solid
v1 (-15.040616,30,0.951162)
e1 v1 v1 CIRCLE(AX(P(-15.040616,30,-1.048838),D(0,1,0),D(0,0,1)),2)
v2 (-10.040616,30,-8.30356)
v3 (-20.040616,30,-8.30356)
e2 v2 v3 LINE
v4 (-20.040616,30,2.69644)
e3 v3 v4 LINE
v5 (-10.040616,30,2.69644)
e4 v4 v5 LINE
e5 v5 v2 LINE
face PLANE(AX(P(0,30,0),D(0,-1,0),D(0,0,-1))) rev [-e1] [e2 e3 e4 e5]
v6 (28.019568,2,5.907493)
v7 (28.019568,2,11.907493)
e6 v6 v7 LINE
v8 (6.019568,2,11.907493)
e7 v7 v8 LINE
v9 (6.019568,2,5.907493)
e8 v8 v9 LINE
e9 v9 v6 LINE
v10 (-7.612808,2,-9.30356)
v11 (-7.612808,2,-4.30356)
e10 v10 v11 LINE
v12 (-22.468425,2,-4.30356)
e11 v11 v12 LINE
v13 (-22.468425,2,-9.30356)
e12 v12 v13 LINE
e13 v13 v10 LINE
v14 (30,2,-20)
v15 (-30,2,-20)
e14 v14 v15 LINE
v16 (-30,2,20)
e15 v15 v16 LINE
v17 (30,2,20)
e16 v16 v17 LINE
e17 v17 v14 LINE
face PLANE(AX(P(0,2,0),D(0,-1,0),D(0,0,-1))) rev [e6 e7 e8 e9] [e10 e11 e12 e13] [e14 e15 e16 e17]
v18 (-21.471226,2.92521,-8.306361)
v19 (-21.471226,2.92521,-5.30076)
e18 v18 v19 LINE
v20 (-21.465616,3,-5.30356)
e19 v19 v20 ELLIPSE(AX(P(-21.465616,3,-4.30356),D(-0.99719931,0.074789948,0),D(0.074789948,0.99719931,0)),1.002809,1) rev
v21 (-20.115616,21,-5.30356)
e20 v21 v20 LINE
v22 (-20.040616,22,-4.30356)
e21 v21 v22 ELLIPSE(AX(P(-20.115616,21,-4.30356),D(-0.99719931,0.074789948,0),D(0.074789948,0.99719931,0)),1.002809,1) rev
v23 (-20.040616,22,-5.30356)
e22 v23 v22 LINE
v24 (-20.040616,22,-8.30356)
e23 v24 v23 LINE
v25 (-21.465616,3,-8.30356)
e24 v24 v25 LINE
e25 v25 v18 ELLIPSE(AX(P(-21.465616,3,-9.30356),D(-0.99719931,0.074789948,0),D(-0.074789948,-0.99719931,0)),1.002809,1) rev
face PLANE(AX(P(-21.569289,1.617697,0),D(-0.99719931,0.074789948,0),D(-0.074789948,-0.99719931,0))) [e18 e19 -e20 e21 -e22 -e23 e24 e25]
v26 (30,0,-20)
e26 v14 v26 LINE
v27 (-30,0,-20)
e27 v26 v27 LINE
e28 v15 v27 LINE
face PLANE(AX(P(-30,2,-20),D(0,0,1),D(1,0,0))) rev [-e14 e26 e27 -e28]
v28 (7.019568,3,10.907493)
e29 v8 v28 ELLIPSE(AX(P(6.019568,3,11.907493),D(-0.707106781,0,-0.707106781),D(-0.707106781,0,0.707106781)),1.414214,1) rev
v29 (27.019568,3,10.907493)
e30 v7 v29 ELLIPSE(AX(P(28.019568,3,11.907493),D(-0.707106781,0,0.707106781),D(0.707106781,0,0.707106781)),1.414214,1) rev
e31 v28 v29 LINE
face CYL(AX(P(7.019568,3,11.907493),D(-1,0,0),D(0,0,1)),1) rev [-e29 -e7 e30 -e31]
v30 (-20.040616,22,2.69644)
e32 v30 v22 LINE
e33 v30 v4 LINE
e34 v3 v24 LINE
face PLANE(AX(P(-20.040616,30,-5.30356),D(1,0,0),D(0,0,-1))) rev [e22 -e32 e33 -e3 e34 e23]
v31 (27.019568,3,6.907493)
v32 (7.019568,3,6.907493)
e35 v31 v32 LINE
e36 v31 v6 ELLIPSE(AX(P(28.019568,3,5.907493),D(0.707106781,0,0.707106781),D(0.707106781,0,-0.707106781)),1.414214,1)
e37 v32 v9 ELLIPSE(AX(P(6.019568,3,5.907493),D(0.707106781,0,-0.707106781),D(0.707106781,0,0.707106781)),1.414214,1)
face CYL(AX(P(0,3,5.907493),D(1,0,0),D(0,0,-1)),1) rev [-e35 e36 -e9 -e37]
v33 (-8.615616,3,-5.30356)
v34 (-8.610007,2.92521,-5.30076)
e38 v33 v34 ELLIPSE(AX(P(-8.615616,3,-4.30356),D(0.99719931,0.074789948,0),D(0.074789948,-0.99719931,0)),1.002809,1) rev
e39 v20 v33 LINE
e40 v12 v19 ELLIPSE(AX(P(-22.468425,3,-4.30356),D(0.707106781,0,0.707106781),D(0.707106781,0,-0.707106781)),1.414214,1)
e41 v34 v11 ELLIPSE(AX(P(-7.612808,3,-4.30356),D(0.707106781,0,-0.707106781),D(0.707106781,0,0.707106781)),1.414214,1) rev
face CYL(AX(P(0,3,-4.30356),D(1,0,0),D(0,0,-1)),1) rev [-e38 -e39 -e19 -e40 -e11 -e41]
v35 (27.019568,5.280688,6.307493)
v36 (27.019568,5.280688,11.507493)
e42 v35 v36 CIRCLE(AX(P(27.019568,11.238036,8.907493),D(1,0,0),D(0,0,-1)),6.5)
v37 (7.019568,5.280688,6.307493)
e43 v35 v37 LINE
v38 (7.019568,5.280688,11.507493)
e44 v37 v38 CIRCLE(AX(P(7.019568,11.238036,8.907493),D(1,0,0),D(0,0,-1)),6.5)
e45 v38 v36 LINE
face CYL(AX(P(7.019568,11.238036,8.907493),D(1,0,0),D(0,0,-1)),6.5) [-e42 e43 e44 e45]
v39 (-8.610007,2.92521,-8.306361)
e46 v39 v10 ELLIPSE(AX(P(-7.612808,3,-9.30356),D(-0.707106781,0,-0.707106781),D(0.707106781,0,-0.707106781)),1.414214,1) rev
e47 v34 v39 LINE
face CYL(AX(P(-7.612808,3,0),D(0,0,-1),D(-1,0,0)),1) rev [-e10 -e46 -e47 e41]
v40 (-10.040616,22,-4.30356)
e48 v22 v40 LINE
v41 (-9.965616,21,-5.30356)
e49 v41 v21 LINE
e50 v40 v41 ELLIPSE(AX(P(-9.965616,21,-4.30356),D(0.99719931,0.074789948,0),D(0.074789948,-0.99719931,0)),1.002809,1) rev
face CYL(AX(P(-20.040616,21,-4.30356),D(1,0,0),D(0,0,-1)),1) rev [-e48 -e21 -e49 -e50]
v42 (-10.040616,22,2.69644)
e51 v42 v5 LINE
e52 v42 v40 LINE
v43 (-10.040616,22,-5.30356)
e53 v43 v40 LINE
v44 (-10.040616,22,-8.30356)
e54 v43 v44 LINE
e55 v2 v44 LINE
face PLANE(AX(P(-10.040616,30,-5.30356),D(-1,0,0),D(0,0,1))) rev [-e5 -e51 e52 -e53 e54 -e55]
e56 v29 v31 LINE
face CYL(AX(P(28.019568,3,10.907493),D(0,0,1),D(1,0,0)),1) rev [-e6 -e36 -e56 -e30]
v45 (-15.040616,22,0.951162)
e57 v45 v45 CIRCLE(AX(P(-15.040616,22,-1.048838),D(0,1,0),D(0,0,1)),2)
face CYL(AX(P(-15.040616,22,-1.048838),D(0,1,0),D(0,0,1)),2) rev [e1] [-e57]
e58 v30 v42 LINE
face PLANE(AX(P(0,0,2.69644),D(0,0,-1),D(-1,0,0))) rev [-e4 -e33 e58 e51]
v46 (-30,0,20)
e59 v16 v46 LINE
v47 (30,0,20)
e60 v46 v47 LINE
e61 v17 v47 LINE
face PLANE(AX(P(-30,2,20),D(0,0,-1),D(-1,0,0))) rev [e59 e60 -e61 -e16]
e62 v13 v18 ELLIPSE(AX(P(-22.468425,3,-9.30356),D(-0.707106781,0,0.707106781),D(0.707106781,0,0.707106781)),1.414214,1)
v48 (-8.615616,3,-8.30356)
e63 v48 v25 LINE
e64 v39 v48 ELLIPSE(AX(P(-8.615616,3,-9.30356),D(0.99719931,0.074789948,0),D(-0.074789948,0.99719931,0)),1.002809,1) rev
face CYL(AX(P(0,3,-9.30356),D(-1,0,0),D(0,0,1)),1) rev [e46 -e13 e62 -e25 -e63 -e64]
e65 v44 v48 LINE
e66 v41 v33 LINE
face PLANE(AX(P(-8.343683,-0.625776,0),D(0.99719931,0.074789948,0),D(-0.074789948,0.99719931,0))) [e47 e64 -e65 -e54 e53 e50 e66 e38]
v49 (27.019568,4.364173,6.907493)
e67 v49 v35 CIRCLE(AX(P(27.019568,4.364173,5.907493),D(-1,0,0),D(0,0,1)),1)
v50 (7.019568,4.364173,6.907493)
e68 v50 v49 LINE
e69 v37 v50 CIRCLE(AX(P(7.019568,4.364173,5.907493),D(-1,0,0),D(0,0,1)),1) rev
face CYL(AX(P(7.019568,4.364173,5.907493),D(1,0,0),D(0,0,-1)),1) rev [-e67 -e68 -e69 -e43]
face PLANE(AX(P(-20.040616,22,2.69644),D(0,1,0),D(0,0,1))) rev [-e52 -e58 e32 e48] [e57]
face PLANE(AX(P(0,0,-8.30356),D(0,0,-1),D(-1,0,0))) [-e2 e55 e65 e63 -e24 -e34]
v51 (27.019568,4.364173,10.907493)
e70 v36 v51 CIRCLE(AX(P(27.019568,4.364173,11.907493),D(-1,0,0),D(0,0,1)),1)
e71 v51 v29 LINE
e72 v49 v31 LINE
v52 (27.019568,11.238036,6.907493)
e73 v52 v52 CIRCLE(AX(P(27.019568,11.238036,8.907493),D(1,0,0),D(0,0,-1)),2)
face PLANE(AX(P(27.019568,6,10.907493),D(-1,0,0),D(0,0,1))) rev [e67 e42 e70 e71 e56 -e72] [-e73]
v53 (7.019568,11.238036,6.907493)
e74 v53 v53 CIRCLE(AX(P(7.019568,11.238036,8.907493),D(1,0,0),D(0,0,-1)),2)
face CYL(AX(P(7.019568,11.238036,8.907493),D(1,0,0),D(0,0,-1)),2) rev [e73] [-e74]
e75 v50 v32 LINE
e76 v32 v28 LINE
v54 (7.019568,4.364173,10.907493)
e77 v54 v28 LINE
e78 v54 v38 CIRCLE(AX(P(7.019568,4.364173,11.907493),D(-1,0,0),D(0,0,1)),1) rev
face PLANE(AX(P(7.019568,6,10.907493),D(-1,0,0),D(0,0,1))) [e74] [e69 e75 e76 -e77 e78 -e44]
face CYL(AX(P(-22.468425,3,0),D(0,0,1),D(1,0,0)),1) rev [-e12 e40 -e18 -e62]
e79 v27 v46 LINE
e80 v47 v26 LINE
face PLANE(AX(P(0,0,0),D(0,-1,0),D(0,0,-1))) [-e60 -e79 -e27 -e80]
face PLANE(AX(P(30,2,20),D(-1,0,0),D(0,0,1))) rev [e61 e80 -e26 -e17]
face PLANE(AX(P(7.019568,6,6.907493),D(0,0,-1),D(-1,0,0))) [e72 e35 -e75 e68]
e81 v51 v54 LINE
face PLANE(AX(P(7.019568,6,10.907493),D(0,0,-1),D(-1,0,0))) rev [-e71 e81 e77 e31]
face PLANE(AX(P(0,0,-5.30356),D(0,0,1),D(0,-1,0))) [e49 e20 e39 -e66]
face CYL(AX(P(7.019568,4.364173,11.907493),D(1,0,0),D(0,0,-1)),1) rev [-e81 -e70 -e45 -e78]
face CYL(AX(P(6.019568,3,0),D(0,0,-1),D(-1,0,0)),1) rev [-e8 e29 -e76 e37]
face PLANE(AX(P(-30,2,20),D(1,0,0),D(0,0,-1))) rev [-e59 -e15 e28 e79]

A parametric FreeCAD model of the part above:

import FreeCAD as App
import Part
import Sketcher
Q = App.Units.Quantity


def edges_at(feature, points):
    """Names of the edges that pass closest to the given points."""
    edges = feature.Shape.Edges
    near = lambda p: min(range(len(edges)), key=lambda i: edges[i].distToShape(Part.Vertex(*p))[0])
    return sorted({f"Edge{near(p) + 1}" for p in points})

doc = App.newDocument("Part")
params = doc.addObject("Spreadsheet::Sheet", "Params")
for row, (alias, value) in enumerate([
    ("sketch1_width", "60 mm"),
    ("sketch1_height", "40 mm"),
    ("pad1_length", "2 mm"),
    ("sketch2_width", "10 mm"),
    ("sketch2_height", "3 mm"),
    ("sketch3_width", "13 mm"),
    ("sketch3_height", "3 mm"),
    ("sketch4_width", "10 mm"),
    ("sketch4_height", "3 mm"),
    ("pad2_length", "8 mm"),
    ("sketch5_width", "10 mm"),
    ("sketch5_height", "8 mm"),
    ("pad3_length", "8 mm"),
    ("sketch6_diameter", "4 mm"),
    ("pocket1_length", "8 mm"),
    ("sketch7_width", "20 mm"),
    ("sketch7_height", "4 mm"),
    ("pad4_length", "4 mm"),
    ("sketch8_diameter", "13 mm"),
    ("sketch8_diameter2", "4 mm"),
    ("pad5_length", "20 mm"),
    ("fillet_radius", "1 mm"),
    ("fillet2_radius", "1 mm"),
    ("fillet3_radius", "1 mm"),
], start=1):
    params.set(f"A{row}", alias)
    params.set(f"B{row}", "=" + value)
    params.setAlias(f"B{row}", alias)

body = doc.addObject("PartDesign::Body", "Body")

# Sketch on XZ plane
sketch1 = body.newObject("Sketcher::SketchObject", "Sketch")
sketch1.AttachmentSupport = (doc.getObject("XZ_Plane"), [""])
sketch1.MapMode = "FlatFace"
sketch1.addGeometry([
    Part.LineSegment(App.Vector(-30, -20, 0), App.Vector(-30, 20, 0)),
    Part.LineSegment(App.Vector(-30, 20, 0), App.Vector(30, 20, 0)),
    Part.LineSegment(App.Vector(30, 20, 0), App.Vector(30, -20, 0)),
    Part.LineSegment(App.Vector(30, -20, 0), App.Vector(-30, -20, 0)),
], False)
sketch1.addConstraint([
    Sketcher.Constraint("Coincident", 0, 2, 1, 1),
    Sketcher.Constraint("Coincident", 1, 2, 2, 1),
    Sketcher.Constraint("Coincident", 2, 2, 3, 1),
    Sketcher.Constraint("Coincident", 3, 2, 0, 1),
    Sketcher.Constraint("Vertical", 0),
    Sketcher.Constraint("Horizontal", 1),
    Sketcher.Constraint("Vertical", 2),
    Sketcher.Constraint("Horizontal", 3),
    Sketcher.Constraint("Symmetric", 0, 2, 2, 2, -1, 1),
    Sketcher.Constraint("DistanceX", 1, 1, 1, 2, Q("60 mm")),
    Sketcher.Constraint("DistanceY", 0, 1, 0, 2, Q("40 mm")),
])
sketch1.setExpression("Constraints[9]", "Params.sketch1_width")
sketch1.setExpression("Constraints[10]", "Params.sketch1_height")
pad1 = body.newObject("PartDesign::Pad", "Pad")
pad1.Profile = sketch1
pad1.setExpression("Length", "Params.pad1_length")
pad1.Reversed = True

# Sketch on XZ plane
sketch2 = body.newObject("Sketcher::SketchObject", "Sketch001")
sketch2.AttachmentSupport = (doc.getObject("XZ_Plane"), [""])
sketch2.MapMode = "FlatFace"
sketch2.AttachmentOffset = App.Placement(App.Vector(0, 0, -22), App.Rotation())
sketch2.addGeometry([
    Part.LineSegment(App.Vector(-20.040616, -5.30356, 0), App.Vector(-10.040616, -5.30356, 0)),
    Part.LineSegment(App.Vector(-10.040616, -5.30356, 0), App.Vector(-10.040616, -8.30356, 0)),
    Part.LineSegment(App.Vector(-10.040616, -8.30356, 0), App.Vector(-20.040616, -8.30356, 0)),
    Part.LineSegment(App.Vector(-20.040616, -8.30356, 0), App.Vector(-20.040616, -5.30356, 0)),
], False)
sketch2.addConstraint([
    Sketcher.Constraint("Coincident", 0, 2, 1, 1),
    Sketcher.Constraint("Coincident", 1, 2, 2, 1),
    Sketcher.Constraint("Coincident", 2, 2, 3, 1),
    Sketcher.Constraint("Coincident", 3, 2, 0, 1),
    Sketcher.Constraint("Horizontal", 0),
    Sketcher.Constraint("Vertical", 1),
    Sketcher.Constraint("Horizontal", 2),
    Sketcher.Constraint("Vertical", 3),
    Sketcher.Constraint("DistanceX", 0, 1, 0, 2, Q("10 mm")),
    Sketcher.Constraint("DistanceY", 1, 2, 1, 1, Q("3 mm")),
    Sketcher.Constraint("DistanceY", 0, 2, -1, 1, Q("5.30356 mm")),
    Sketcher.Constraint("DistanceX", 0, 2, -1, 1, Q("10.040616 mm")),
])
sketch2.setExpression("Constraints[8]", "Params.sketch2_width")
sketch2.setExpression("Constraints[9]", "Params.sketch2_height")

# Sketch on XZ plane
sketch3 = body.newObject("Sketcher::SketchObject", "Sketch002")
sketch3.AttachmentSupport = (doc.getObject("XZ_Plane"), [""])
sketch3.MapMode = "FlatFace"
sketch3.AttachmentOffset = App.Placement(App.Vector(0, 0, -2), App.Rotation())
sketch3.addGeometry([
    Part.LineSegment(App.Vector(-21.540616, -5.30356, 0), App.Vector(-8.540616, -5.30356, 0)),
    Part.LineSegment(App.Vector(-8.540616, -5.30356, 0), App.Vector(-8.540616, -8.30356, 0)),
    Part.LineSegment(App.Vector(-8.540616, -8.30356, 0), App.Vector(-21.540616, -8.30356, 0)),
    Part.LineSegment(App.Vector(-21.540616, -8.30356, 0), App.Vector(-21.540616, -5.30356, 0)),
], False)
sketch3.addConstraint([
    Sketcher.Constraint("Coincident", 0, 2, 1, 1),
    Sketcher.Constraint("Coincident", 1, 2, 2, 1),
    Sketcher.Constraint("Coincident", 2, 2, 3, 1),
    Sketcher.Constraint("Coincident", 3, 2, 0, 1),
    Sketcher.Constraint("Horizontal", 0),
    Sketcher.Constraint("Vertical", 1),
    Sketcher.Constraint("Horizontal", 2),
    Sketcher.Constraint("Vertical", 3),
    Sketcher.Constraint("DistanceX", 0, 1, 0, 2, Q("13 mm")),
    Sketcher.Constraint("DistanceY", 1, 2, 1, 1, Q("3 mm")),
    Sketcher.Constraint("DistanceY", 0, 2, -1, 1, Q("5.30356 mm")),
    Sketcher.Constraint("DistanceX", 0, 2, -1, 1, Q("8.540616 mm")),
])
sketch3.setExpression("Constraints[8]", "Params.sketch3_width")
sketch3.setExpression("Constraints[9]", "Params.sketch3_height")

additiveloft = body.newObject("PartDesign::AdditiveLoft", "AdditiveLoft")
additiveloft.Profile = sketch2
additiveloft.Sections = [sketch3]

# Sketch on XZ plane
sketch4 = body.newObject("Sketcher::SketchObject", "Sketch003")
sketch4.AttachmentSupport = (doc.getObject("XZ_Plane"), [""])
sketch4.MapMode = "FlatFace"
sketch4.AttachmentOffset = App.Placement(App.Vector(0, 0, -22), App.Rotation())
sketch4.addGeometry([
    Part.LineSegment(App.Vector(-20.040616, -8.30356, 0), App.Vector(-20.040616, -5.30356, 0)),
    Part.LineSegment(App.Vector(-20.040616, -5.30356, 0), App.Vector(-10.040616, -5.30356, 0)),
    Part.LineSegment(App.Vector(-10.040616, -5.30356, 0), App.Vector(-10.040616, -8.30356, 0)),
    Part.LineSegment(App.Vector(-10.040616, -8.30356, 0), App.Vector(-20.040616, -8.30356, 0)),
], False)
sketch4.addConstraint([
    Sketcher.Constraint("Coincident", 0, 2, 1, 1),
    Sketcher.Constraint("Coincident", 1, 2, 2, 1),
    Sketcher.Constraint("Coincident", 2, 2, 3, 1),
    Sketcher.Constraint("Coincident", 3, 2, 0, 1),
    Sketcher.Constraint("Vertical", 0),
    Sketcher.Constraint("Horizontal", 1),
    Sketcher.Constraint("Vertical", 2),
    Sketcher.Constraint("Horizontal", 3),
    Sketcher.Constraint("DistanceX", 1, 1, 1, 2, Q("10 mm")),
    Sketcher.Constraint("DistanceY", 0, 1, 0, 2, Q("3 mm")),
    Sketcher.Constraint("DistanceY", 0, 2, -1, 1, Q("5.30356 mm")),
    Sketcher.Constraint("DistanceX", 0, 2, -1, 1, Q("20.040616 mm")),
])
sketch4.setExpression("Constraints[8]", "Params.sketch4_width")
sketch4.setExpression("Constraints[9]", "Params.sketch4_height")
pad2 = body.newObject("PartDesign::Pad", "Pad001")
pad2.Profile = sketch4
pad2.setExpression("Length", "Params.pad2_length")
pad2.Reversed = True

# Sketch on XY plane
sketch5 = body.newObject("Sketcher::SketchObject", "Sketch004")
sketch5.AttachmentSupport = (doc.getObject("XY_Plane"), [""])
sketch5.MapMode = "FlatFace"
sketch5.AttachmentOffset = App.Placement(App.Vector(0, 0, -5.30356), App.Rotation())
sketch5.addGeometry([
    Part.LineSegment(App.Vector(-20.040616, 30, 0), App.Vector(-20.040616, 22, 0)),
    Part.LineSegment(App.Vector(-20.040616, 22, 0), App.Vector(-10.040616, 22, 0)),
    Part.LineSegment(App.Vector(-10.040616, 22, 0), App.Vector(-10.040616, 30, 0)),
    Part.LineSegment(App.Vector(-10.040616, 30, 0), App.Vector(-20.040616, 30, 0)),
], False)
sketch5.addConstraint([
    Sketcher.Constraint("Coincident", 0, 2, 1, 1),
    Sketcher.Constraint("Coincident", 1, 2, 2, 1),
    Sketcher.Constraint("Coincident", 2, 2, 3, 1),
    Sketcher.Constraint("Coincident", 3, 2, 0, 1),
    Sketcher.Constraint("Vertical", 0),
    Sketcher.Constraint("Horizontal", 1),
    Sketcher.Constraint("Vertical", 2),
    Sketcher.Constraint("Horizontal", 3),
    Sketcher.Constraint("DistanceX", 1, 1, 1, 2, Q("10 mm")),
    Sketcher.Constraint("DistanceY", 0, 2, 0, 1, Q("8 mm")),
    Sketcher.Constraint("DistanceY", -1, 1, 0, 2, Q("22 mm")),
    Sketcher.Constraint("DistanceX", 0, 2, -1, 1, Q("20.040616 mm")),
])
sketch5.setExpression("Constraints[8]", "Params.sketch5_width")
sketch5.setExpression("Constraints[9]", "Params.sketch5_height")
pad3 = body.newObject("PartDesign::Pad", "Pad002")
pad3.Profile = sketch5
pad3.setExpression("Length", "Params.pad3_length")

# Sketch on XZ plane
sketch6 = body.newObject("Sketcher::SketchObject", "Sketch005")
sketch6.AttachmentSupport = (doc.getObject("XZ_Plane"), [""])
sketch6.MapMode = "FlatFace"
sketch6.AttachmentOffset = App.Placement(App.Vector(0, 0, -30), App.Rotation())
sketch6.addGeometry(Part.Circle(App.Vector(-15.040616, -1.048838, 0), App.Vector(0, 0, 1), 2), False)
sketch6.addConstraint([
    Sketcher.Constraint("Diameter", 0, Q("4 mm")),
    Sketcher.Constraint("DistanceY", 0, 3, -1, 1, Q("1.048838 mm")),
    Sketcher.Constraint("DistanceX", 0, 3, -1, 1, Q("15.040616 mm")),
])
sketch6.setExpression("Constraints[0]", "Params.sketch6_diameter")
pocket1 = body.newObject("PartDesign::Pocket", "Pocket")
pocket1.Profile = sketch6
pocket1.setExpression("Length", "Params.pocket1_length")
pocket1.Reversed = True

# Sketch on XZ plane
sketch7 = body.newObject("Sketcher::SketchObject", "Sketch006")
sketch7.AttachmentSupport = (doc.getObject("XZ_Plane"), [""])
sketch7.MapMode = "FlatFace"
sketch7.AttachmentOffset = App.Placement(App.Vector(0, 0, -2), App.Rotation())
sketch7.addGeometry([
    Part.LineSegment(App.Vector(7.019568, 6.907493, 0), App.Vector(7.019568, 10.907493, 0)),
    Part.LineSegment(App.Vector(7.019568, 10.907493, 0), App.Vector(27.019568, 10.907493, 0)),
    Part.LineSegment(App.Vector(27.019568, 10.907493, 0), App.Vector(27.019568, 6.907493, 0)),
    Part.LineSegment(App.Vector(27.019568, 6.907493, 0), App.Vector(7.019568, 6.907493, 0)),
], False)
sketch7.addConstraint([
    Sketcher.Constraint("Coincident", 0, 2, 1, 1),
    Sketcher.Constraint("Coincident", 1, 2, 2, 1),
    Sketcher.Constraint("Coincident", 2, 2, 3, 1),
    Sketcher.Constraint("Coincident", 3, 2, 0, 1),
    Sketcher.Constraint("Vertical", 0),
    Sketcher.Constraint("Horizontal", 1),
    Sketcher.Constraint("Vertical", 2),
    Sketcher.Constraint("Horizontal", 3),
    Sketcher.Constraint("DistanceX", 1, 1, 1, 2, Q("20 mm")),
    Sketcher.Constraint("DistanceY", 0, 1, 0, 2, Q("4 mm")),
    Sketcher.Constraint("DistanceX", -1, 1, 0, 2, Q("7.019568 mm")),
    Sketcher.Constraint("DistanceY", -1, 1, 0, 2, Q("10.907493 mm")),
])
sketch7.setExpression("Constraints[8]", "Params.sketch7_width")
sketch7.setExpression("Constraints[9]", "Params.sketch7_height")
pad4 = body.newObject("PartDesign::Pad", "Pad003")
pad4.Profile = sketch7
pad4.setExpression("Length", "Params.pad4_length")
pad4.Reversed = True

# Sketch on YZ plane
sketch8 = body.newObject("Sketcher::SketchObject", "Sketch007")
sketch8.AttachmentSupport = (doc.getObject("YZ_Plane"), [""])
sketch8.MapMode = "FlatFace"
sketch8.AttachmentOffset = App.Placement(App.Vector(0, 0, 27.019568), App.Rotation())
sketch8.addGeometry([
    Part.Circle(App.Vector(11.238036, 8.907493, 0), App.Vector(0, 0, 1), 6.5),
    Part.Circle(App.Vector(11.238036, 8.907493, 0), App.Vector(0, 0, 1), 2),
], False)
sketch8.addConstraint([
    Sketcher.Constraint("Coincident", 1, 3, 0, 3),
    Sketcher.Constraint("Diameter", 0, Q("13 mm")),
    Sketcher.Constraint("Diameter", 1, Q("4 mm")),
    Sketcher.Constraint("DistanceX", -1, 1, 0, 3, Q("11.238036 mm")),
    Sketcher.Constraint("DistanceY", -1, 1, 0, 3, Q("8.907493 mm")),
])
sketch8.setExpression("Constraints[1]", "Params.sketch8_diameter")
sketch8.setExpression("Constraints[2]", "Params.sketch8_diameter2")
pad5 = body.newObject("PartDesign::Pad", "Pad004")
pad5.Profile = sketch8
pad5.setExpression("Length", "Params.pad5_length")
pad5.Reversed = True
doc.recompute()

fillet = body.newObject("PartDesign::Fillet", "Fillet")
fillet.Base = (pad5, edges_at(pad5, [
    (-21.541, 2, -6.804),
    (-15.041, 2, -5.304),
    (-15.041, 2, -8.304),
    (-8.541, 2, -6.804),
]))
fillet.setExpression("Radius", "Params.fillet_radius")
doc.recompute()

fillet2 = body.newObject("PartDesign::Fillet", "Fillet001")
fillet2.Base = (fillet, edges_at(fillet, [(-15.041, 22, -5.304)]))
fillet2.setExpression("Radius", "Params.fillet2_radius")
doc.recompute()

fillet3 = body.newObject("PartDesign::Fillet", "Fillet002")
fillet3.Base = (fillet2, edges_at(fillet2, [
    (17.02, 2, 10.907),
    (27.02, 2, 8.907),
    (7.02, 2, 8.907),
    (17.02, 2, 6.907),
    (17.02, 5.053, 6.907),
    (17.02, 5.053, 10.907),
]))
fillet3.setExpression("Radius", "Params.fillet3_radius")

doc.recompute()
